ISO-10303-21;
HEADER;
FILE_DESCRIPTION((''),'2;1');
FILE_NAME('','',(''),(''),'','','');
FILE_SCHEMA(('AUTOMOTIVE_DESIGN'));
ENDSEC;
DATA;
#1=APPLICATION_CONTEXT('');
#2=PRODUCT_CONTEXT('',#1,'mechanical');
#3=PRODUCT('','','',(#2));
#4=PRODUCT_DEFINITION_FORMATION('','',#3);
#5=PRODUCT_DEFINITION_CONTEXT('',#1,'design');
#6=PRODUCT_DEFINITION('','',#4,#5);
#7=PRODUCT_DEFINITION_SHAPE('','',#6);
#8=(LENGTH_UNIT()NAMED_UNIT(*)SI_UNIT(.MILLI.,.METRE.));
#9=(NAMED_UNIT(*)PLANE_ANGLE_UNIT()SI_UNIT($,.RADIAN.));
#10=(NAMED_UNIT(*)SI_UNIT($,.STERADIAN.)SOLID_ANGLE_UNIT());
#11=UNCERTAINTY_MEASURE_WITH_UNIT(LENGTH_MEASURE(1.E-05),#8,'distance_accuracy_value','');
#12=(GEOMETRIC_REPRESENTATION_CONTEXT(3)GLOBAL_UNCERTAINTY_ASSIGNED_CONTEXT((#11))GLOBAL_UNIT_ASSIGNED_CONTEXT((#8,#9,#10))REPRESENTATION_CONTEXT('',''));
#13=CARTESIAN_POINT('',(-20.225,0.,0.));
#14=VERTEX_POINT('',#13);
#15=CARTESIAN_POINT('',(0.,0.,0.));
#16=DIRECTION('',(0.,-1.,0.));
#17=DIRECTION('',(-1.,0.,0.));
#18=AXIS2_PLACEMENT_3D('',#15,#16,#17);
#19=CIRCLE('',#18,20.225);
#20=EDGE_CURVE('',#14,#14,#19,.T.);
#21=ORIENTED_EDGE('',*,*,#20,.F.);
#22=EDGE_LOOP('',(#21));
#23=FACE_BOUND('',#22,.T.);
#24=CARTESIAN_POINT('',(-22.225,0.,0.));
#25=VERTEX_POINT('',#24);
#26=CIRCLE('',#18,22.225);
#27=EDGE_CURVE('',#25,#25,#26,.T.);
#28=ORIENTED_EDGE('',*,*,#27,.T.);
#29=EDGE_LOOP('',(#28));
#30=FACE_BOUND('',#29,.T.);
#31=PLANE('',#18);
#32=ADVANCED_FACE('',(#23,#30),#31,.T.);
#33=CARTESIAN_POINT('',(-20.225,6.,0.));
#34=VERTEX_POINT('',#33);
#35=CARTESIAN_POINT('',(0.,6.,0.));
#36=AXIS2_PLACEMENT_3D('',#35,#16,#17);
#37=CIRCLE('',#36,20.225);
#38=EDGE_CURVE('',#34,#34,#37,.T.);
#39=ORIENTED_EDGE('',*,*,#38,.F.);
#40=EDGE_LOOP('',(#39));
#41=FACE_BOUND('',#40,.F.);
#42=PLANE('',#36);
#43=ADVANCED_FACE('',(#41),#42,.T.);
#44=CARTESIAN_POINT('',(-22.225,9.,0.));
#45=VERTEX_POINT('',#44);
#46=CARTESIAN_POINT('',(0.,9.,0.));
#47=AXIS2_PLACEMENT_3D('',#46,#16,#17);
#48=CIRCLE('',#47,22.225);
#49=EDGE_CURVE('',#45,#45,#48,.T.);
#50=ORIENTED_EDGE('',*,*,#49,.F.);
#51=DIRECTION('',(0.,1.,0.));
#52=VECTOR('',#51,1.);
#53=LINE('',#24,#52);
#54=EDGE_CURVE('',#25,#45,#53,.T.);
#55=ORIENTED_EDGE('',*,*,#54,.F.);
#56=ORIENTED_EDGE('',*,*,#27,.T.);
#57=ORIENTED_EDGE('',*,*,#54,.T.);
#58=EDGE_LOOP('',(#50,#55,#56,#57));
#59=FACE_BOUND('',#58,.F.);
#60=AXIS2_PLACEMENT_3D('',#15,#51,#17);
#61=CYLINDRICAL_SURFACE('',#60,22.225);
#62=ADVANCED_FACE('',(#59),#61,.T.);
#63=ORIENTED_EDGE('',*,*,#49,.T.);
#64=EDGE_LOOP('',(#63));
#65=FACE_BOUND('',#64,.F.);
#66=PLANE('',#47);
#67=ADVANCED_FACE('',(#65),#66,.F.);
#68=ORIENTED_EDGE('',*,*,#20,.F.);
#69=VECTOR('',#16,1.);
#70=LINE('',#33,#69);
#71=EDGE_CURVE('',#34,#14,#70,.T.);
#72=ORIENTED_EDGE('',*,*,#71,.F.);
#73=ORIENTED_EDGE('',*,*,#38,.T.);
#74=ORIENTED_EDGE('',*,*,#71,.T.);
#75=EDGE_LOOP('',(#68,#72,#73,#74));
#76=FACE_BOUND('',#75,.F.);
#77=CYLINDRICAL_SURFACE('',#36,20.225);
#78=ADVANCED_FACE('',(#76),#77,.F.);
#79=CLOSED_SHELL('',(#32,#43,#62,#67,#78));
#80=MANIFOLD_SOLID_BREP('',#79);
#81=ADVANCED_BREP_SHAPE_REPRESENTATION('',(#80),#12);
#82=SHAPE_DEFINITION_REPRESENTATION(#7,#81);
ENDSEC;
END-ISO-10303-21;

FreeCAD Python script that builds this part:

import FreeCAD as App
import Part
import Sketcher

V = App.Vector


def add_polygon(sketch, points):
    """Adds a closed chain of lines whose ends are joined by coincident constraints."""
    first, n = sketch.GeometryCount, len(points)
    for a, b in zip(points, points[1:] + points[:1]):
        sketch.addGeometry(Part.LineSegment(App.Vector(*a, 0), App.Vector(*b, 0)), False)
    for i in range(n):
        sketch.addConstraint(Sketcher.Constraint("Coincident", first + i, 2, first + (i + 1) % n, 1))

doc = App.newDocument("Part")
params = doc.addObject("Spreadsheet::Sheet", "Params")
for row, (alias, value) in enumerate([
    ("sketch1_height", "6 mm"),
    ("sketch1_height2", "3 mm"),
    ("sketch1_width", "2 mm"),
    ("revolution_angle", "360 deg"),
], start=1):
    params.set(f"A{row}", alias)
    params.set(f"B{row}", "=" + value)
    params.setAlias(f"B{row}", alias)

body = doc.addObject("PartDesign::Body", "Body")

sketch1 = doc.addObject("Sketcher::SketchObject", "Sketch")
body.addObject(sketch1)
sketch1.AttachmentSupport = (doc.XY_Plane, [""])
sketch1.MapMode = "FlatFace"
add_polygon(sketch1, [(-20.2, 0), (-20.2, 6), (0, 6), (0, 9), (-22.2, 9), (-22.2, 0)])
sketch1.addConstraint(Sketcher.Constraint("Vertical", 0))
sketch1.addConstraint(Sketcher.Constraint("Horizontal", 1))
sketch1.addConstraint(Sketcher.Constraint("Vertical", 2))
sketch1.addConstraint(Sketcher.Constraint("Horizontal", 3))
sketch1.addConstraint(Sketcher.Constraint("Vertical", 4))
sketch1.addConstraint(Sketcher.Constraint("Horizontal", 5))
sketch1.addConstraint(Sketcher.Constraint("PointOnObject", 1, 2, -2))
sketch1.addConstraint(Sketcher.Constraint("PointOnObject", 4, 2, -1))
sketch1.addConstraint(Sketcher.Constraint("DistanceY", 0, 1, 0, 2, 6.0))
sketch1.addConstraint(Sketcher.Constraint("DistanceY", 2, 1, 2, 2, 3.0))
sketch1.addConstraint(Sketcher.Constraint("DistanceX", 3, 2, 3, 1, 22.225))
sketch1.addConstraint(Sketcher.Constraint("DistanceX", 5, 1, 5, 2, 2.0))
sketch1.setExpression("Constraints[14]", "Params.sketch1_height")
sketch1.setExpression("Constraints[15]", "Params.sketch1_height2")
sketch1.setExpression("Constraints[17]", "Params.sketch1_width")
revolution = doc.addObject("PartDesign::Revolution", "Revolution")
body.addObject(revolution)
revolution.Profile = sketch1
revolution.ReferenceAxis = (sketch1, ["V_Axis"])
revolution.setExpression("Angle", "Params.revolution_angle")

doc.recompute()
